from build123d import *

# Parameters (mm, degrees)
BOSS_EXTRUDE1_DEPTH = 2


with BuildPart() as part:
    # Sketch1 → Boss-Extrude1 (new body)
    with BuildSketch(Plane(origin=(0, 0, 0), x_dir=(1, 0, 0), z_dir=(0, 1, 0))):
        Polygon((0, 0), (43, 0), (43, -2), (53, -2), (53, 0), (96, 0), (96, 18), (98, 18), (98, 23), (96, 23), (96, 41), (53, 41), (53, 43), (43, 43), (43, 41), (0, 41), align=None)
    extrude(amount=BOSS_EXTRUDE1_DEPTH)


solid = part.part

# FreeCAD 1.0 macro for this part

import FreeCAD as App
import Part
import Sketcher


def add_polygon(sketch, points):
    """Adds a closed chain of lines whose ends are joined by coincident constraints."""
    first, n = sketch.GeometryCount, len(points)
    for a, b in zip(points, points[1:] + points[:1]):
        sketch.addGeometry(Part.LineSegment(App.Vector(*a, 0), App.Vector(*b, 0)), False)
    for i in range(n):
        sketch.addConstraint(Sketcher.Constraint("Coincident", first + i, 2, first + (i + 1) % n, 1))

doc = App.newDocument("Part")
body = doc.addObject("PartDesign::Body", "Body")

sketch1 = body.newObject("Sketcher::SketchObject", "Sketch")
sketch1.AttachmentSupport = (doc.getObject("XZ_Plane"), [""])
sketch1.MapMode = "FlatFace"
add_polygon(sketch1, [(0, 0), (43, 0), (43, 2), (53, 2), (53, 0), (96, 0), (96, -18), (98, -18), (98, -23), (96, -23), (96, -41), (53, -41), (53, -43), (43, -43), (43, -41), (0, -41)])
sketch1.addConstraint([
    Sketcher.Constraint("Horizontal", 0),
    Sketcher.Constraint("Vertical", 1),
    Sketcher.Constraint("Horizontal", 2),
    Sketcher.Constraint("Vertical", 3),
    Sketcher.Constraint("Horizontal", 4),
    Sketcher.Constraint("Vertical", 5),
    Sketcher.Constraint("Horizontal", 6),
    Sketcher.Constraint("Vertical", 7),
    Sketcher.Constraint("Horizontal", 8),
    Sketcher.Constraint("Vertical", 9),
    Sketcher.Constraint("Horizontal", 10),
    Sketcher.Constraint("Vertical", 11),
    Sketcher.Constraint("Horizontal", 12),
    Sketcher.Constraint("Vertical", 13),
    Sketcher.Constraint("Horizontal", 14),
    Sketcher.Constraint("Vertical", 15),
    Sketcher.Constraint("Coincident", 15, 2, -1, 1),
    Sketcher.Constraint("PointOnObject", 3, 2, -1),
    Sketcher.Constraint("Horizontal", 10, 2, 13, 2),
    Sketcher.Constraint("Vertical", 5, 2, 8, 2),
    Sketcher.Constraint("Vertical", 3, 2, 10, 2),
    Sketcher.Constraint("Vertical", 1, 2, 12, 2),
    Sketcher.Constraint("Equal", 0, 4),
    Sketcher.Constraint("Equal", 8, 1),
    Sketcher.Constraint("Equal", 5, 9),
    Sketcher.Constraint("Equal", 3, 11),
    Sketcher.Constraint("DistanceX", 0, 1, 0, 2, 43.0),
    Sketcher.Constraint("DistanceX", 2, 1, 2, 2, 10.0),
    Sketcher.Constraint("DistanceX", 6, 1, 6, 2, 2.0),
    Sketcher.Constraint("DistanceY", 5, 2, 5, 1, 18.0),
    Sketcher.Constraint("DistanceY", 7, 2, 7, 1, 5.0),
])
pad1 = body.newObject("PartDesign::Pad", "Pad")
pad1.Profile = sketch1
pad1.Length = 2
pad1.Reversed = True

doc.recompute()
